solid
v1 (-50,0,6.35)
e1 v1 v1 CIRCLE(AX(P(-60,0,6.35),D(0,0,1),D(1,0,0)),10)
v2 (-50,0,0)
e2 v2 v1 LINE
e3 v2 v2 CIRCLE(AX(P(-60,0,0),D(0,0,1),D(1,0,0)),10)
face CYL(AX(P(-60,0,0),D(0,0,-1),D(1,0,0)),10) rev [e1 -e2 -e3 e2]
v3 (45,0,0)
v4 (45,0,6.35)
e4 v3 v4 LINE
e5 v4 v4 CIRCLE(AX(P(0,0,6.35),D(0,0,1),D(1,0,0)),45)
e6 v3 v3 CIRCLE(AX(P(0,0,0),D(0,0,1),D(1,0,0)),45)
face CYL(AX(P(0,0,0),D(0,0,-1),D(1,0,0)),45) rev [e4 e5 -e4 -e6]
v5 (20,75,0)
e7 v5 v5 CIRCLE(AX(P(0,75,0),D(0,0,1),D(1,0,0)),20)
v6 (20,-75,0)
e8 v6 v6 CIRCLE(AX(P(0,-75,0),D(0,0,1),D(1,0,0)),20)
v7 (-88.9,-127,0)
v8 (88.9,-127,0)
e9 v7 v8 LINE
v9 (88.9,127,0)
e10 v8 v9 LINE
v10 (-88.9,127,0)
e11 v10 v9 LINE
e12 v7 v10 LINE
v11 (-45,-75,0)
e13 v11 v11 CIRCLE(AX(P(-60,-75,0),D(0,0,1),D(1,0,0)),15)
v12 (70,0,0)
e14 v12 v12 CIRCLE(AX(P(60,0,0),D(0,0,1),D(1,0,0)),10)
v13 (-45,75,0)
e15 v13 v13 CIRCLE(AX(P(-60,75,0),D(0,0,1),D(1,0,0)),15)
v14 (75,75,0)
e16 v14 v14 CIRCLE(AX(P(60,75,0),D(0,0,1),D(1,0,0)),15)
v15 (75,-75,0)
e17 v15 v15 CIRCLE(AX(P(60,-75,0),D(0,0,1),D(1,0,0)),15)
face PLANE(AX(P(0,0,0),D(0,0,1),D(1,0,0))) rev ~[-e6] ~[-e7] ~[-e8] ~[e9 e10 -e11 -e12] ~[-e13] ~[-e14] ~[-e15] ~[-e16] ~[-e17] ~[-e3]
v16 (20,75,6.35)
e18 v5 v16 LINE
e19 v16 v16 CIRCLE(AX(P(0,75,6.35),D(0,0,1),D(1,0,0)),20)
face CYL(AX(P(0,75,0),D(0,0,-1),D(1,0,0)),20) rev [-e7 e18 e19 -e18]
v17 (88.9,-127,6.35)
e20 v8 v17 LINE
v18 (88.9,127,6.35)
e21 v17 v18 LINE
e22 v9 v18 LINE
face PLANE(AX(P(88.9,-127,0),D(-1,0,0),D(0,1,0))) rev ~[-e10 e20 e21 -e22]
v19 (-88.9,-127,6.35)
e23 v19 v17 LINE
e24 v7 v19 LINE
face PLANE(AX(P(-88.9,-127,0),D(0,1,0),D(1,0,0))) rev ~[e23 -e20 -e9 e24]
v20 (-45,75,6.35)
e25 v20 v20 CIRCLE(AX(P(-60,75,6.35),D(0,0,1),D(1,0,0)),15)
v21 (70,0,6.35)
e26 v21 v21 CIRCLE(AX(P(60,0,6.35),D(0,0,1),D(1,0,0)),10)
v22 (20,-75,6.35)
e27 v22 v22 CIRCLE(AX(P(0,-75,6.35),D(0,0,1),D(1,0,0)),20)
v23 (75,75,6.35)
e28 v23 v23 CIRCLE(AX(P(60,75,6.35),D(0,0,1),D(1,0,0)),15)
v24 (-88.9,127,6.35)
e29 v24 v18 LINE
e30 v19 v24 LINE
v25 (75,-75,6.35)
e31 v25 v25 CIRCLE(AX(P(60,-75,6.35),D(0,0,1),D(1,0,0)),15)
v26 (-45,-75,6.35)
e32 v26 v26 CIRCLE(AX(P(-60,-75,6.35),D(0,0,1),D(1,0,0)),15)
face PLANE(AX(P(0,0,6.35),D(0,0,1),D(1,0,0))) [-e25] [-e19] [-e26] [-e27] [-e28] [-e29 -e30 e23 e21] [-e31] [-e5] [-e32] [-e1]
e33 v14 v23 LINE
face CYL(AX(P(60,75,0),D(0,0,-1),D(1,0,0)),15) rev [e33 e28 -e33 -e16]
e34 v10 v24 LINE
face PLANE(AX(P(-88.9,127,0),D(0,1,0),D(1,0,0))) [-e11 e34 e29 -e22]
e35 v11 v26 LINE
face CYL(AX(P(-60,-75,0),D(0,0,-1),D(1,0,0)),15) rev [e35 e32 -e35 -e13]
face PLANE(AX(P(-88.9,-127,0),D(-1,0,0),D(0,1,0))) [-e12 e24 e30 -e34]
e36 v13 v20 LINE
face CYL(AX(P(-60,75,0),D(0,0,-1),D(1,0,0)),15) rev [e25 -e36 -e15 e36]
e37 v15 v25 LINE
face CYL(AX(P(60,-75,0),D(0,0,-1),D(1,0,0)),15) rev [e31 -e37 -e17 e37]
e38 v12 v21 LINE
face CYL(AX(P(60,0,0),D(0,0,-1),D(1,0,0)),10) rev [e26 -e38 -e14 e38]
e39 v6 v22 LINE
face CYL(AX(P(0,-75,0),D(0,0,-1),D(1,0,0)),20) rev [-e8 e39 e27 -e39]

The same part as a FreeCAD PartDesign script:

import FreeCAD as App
import Part
import Sketcher
Q = App.Units.Quantity

doc = App.newDocument("Part")
body = doc.addObject("PartDesign::Body", "Body")

sketch1 = body.newObject("Sketcher::SketchObject", "Sketch")
sketch1.AttachmentSupport = (doc.getObject("XY_Plane"), [""])
sketch1.MapMode = "FlatFace"
sketch1.addGeometry([
    Part.LineSegment(App.Vector(-89, 127, 0), App.Vector(-89, -127, 0)),
    Part.LineSegment(App.Vector(-89, -127, 0), App.Vector(89, -127, 0)),
    Part.LineSegment(App.Vector(89, -127, 0), App.Vector(89, 127, 0)),
    Part.LineSegment(App.Vector(89, 127, 0), App.Vector(-89, 127, 0)),
    Part.Circle(App.Vector(-60, -75, 0), App.Vector(0, 0, 1), 15),
    Part.Circle(App.Vector(0, -75, 0), App.Vector(0, 0, 1), 20),
    Part.Circle(App.Vector(60, -75, 0), App.Vector(0, 0, 1), 15),
    Part.Circle(App.Vector(-60, 0, 0), App.Vector(0, 0, 1), 10),
    Part.Circle(App.Vector(-60, 75, 0), App.Vector(0, 0, 1), 15),
    Part.Circle(App.Vector(0, 0, 0), App.Vector(0, 0, 1), 45),
    Part.Circle(App.Vector(60, 0, 0), App.Vector(0, 0, 1), 10),
    Part.Circle(App.Vector(0, 75, 0), App.Vector(0, 0, 1), 20),
    Part.Circle(App.Vector(60, 75, 0), App.Vector(0, 0, 1), 15),
], False)
sketch1.addConstraint([
    Sketcher.Constraint("Coincident", 0, 2, 1, 1),
    Sketcher.Constraint("Coincident", 1, 2, 2, 1),
    Sketcher.Constraint("Coincident", 2, 2, 3, 1),
    Sketcher.Constraint("Coincident", 3, 2, 0, 1),
    Sketcher.Constraint("Vertical", 0),
    Sketcher.Constraint("Horizontal", 1),
    Sketcher.Constraint("Vertical", 2),
    Sketcher.Constraint("Horizontal", 3),
    Sketcher.Constraint("Coincident", 9, 3, -1, 1),
    Sketcher.Constraint("Equal", 4, 6),
    Sketcher.Constraint("Equal", 6, 8),
    Sketcher.Constraint("Equal", 7, 10),
    Sketcher.Constraint("Equal", 5, 11),
    Sketcher.Constraint("Equal", 8, 12),
    Sketcher.Constraint("Symmetric", 6, 3, 8, 3, -1, 1),
    Sketcher.Constraint("Symmetric", 7, 3, 10, 3, -1, 1),
    Sketcher.Constraint("Symmetric", 5, 3, 11, 3, -1, 1),
    Sketcher.Constraint("Symmetric", 4, 3, 12, 3, -1, 1),
    Sketcher.Constraint("Symmetric", 0, 2, 2, 2, -1, 1),
    Sketcher.Constraint("Symmetric", 4, 3, 6, 3, -2),
    Sketcher.Constraint("PointOnObject", 5, 3, -2),
    Sketcher.Constraint("PointOnObject", 7, 3, -1),
    Sketcher.Constraint("Horizontal", 4, 3, 5, 3),
    Sketcher.Constraint("Vertical", 4, 3, 7, 3),
    Sketcher.Constraint("Diameter", 4, Q("30 mm")),
    Sketcher.Constraint("Diameter", 5, Q("40 mm")),
    Sketcher.Constraint("Diameter", 7, Q("20 mm")),
    Sketcher.Constraint("Diameter", 9, Q("90 mm")),
    Sketcher.Constraint("DistanceY", 0, 2, 0, 1, Q("254 mm")),
    Sketcher.Constraint("DistanceX", 1, 1, 1, 2, Q("177.8 mm")),
    Sketcher.Constraint("DistanceX", 4, 3, -1, 1, Q("60 mm")),
    Sketcher.Constraint("DistanceY", 4, 3, -1, 1, Q("75 mm")),
])
pad1 = body.newObject("PartDesign::Pad", "Pad")
pad1.Profile = sketch1
pad1.Length = 6.35

doc.recompute()
